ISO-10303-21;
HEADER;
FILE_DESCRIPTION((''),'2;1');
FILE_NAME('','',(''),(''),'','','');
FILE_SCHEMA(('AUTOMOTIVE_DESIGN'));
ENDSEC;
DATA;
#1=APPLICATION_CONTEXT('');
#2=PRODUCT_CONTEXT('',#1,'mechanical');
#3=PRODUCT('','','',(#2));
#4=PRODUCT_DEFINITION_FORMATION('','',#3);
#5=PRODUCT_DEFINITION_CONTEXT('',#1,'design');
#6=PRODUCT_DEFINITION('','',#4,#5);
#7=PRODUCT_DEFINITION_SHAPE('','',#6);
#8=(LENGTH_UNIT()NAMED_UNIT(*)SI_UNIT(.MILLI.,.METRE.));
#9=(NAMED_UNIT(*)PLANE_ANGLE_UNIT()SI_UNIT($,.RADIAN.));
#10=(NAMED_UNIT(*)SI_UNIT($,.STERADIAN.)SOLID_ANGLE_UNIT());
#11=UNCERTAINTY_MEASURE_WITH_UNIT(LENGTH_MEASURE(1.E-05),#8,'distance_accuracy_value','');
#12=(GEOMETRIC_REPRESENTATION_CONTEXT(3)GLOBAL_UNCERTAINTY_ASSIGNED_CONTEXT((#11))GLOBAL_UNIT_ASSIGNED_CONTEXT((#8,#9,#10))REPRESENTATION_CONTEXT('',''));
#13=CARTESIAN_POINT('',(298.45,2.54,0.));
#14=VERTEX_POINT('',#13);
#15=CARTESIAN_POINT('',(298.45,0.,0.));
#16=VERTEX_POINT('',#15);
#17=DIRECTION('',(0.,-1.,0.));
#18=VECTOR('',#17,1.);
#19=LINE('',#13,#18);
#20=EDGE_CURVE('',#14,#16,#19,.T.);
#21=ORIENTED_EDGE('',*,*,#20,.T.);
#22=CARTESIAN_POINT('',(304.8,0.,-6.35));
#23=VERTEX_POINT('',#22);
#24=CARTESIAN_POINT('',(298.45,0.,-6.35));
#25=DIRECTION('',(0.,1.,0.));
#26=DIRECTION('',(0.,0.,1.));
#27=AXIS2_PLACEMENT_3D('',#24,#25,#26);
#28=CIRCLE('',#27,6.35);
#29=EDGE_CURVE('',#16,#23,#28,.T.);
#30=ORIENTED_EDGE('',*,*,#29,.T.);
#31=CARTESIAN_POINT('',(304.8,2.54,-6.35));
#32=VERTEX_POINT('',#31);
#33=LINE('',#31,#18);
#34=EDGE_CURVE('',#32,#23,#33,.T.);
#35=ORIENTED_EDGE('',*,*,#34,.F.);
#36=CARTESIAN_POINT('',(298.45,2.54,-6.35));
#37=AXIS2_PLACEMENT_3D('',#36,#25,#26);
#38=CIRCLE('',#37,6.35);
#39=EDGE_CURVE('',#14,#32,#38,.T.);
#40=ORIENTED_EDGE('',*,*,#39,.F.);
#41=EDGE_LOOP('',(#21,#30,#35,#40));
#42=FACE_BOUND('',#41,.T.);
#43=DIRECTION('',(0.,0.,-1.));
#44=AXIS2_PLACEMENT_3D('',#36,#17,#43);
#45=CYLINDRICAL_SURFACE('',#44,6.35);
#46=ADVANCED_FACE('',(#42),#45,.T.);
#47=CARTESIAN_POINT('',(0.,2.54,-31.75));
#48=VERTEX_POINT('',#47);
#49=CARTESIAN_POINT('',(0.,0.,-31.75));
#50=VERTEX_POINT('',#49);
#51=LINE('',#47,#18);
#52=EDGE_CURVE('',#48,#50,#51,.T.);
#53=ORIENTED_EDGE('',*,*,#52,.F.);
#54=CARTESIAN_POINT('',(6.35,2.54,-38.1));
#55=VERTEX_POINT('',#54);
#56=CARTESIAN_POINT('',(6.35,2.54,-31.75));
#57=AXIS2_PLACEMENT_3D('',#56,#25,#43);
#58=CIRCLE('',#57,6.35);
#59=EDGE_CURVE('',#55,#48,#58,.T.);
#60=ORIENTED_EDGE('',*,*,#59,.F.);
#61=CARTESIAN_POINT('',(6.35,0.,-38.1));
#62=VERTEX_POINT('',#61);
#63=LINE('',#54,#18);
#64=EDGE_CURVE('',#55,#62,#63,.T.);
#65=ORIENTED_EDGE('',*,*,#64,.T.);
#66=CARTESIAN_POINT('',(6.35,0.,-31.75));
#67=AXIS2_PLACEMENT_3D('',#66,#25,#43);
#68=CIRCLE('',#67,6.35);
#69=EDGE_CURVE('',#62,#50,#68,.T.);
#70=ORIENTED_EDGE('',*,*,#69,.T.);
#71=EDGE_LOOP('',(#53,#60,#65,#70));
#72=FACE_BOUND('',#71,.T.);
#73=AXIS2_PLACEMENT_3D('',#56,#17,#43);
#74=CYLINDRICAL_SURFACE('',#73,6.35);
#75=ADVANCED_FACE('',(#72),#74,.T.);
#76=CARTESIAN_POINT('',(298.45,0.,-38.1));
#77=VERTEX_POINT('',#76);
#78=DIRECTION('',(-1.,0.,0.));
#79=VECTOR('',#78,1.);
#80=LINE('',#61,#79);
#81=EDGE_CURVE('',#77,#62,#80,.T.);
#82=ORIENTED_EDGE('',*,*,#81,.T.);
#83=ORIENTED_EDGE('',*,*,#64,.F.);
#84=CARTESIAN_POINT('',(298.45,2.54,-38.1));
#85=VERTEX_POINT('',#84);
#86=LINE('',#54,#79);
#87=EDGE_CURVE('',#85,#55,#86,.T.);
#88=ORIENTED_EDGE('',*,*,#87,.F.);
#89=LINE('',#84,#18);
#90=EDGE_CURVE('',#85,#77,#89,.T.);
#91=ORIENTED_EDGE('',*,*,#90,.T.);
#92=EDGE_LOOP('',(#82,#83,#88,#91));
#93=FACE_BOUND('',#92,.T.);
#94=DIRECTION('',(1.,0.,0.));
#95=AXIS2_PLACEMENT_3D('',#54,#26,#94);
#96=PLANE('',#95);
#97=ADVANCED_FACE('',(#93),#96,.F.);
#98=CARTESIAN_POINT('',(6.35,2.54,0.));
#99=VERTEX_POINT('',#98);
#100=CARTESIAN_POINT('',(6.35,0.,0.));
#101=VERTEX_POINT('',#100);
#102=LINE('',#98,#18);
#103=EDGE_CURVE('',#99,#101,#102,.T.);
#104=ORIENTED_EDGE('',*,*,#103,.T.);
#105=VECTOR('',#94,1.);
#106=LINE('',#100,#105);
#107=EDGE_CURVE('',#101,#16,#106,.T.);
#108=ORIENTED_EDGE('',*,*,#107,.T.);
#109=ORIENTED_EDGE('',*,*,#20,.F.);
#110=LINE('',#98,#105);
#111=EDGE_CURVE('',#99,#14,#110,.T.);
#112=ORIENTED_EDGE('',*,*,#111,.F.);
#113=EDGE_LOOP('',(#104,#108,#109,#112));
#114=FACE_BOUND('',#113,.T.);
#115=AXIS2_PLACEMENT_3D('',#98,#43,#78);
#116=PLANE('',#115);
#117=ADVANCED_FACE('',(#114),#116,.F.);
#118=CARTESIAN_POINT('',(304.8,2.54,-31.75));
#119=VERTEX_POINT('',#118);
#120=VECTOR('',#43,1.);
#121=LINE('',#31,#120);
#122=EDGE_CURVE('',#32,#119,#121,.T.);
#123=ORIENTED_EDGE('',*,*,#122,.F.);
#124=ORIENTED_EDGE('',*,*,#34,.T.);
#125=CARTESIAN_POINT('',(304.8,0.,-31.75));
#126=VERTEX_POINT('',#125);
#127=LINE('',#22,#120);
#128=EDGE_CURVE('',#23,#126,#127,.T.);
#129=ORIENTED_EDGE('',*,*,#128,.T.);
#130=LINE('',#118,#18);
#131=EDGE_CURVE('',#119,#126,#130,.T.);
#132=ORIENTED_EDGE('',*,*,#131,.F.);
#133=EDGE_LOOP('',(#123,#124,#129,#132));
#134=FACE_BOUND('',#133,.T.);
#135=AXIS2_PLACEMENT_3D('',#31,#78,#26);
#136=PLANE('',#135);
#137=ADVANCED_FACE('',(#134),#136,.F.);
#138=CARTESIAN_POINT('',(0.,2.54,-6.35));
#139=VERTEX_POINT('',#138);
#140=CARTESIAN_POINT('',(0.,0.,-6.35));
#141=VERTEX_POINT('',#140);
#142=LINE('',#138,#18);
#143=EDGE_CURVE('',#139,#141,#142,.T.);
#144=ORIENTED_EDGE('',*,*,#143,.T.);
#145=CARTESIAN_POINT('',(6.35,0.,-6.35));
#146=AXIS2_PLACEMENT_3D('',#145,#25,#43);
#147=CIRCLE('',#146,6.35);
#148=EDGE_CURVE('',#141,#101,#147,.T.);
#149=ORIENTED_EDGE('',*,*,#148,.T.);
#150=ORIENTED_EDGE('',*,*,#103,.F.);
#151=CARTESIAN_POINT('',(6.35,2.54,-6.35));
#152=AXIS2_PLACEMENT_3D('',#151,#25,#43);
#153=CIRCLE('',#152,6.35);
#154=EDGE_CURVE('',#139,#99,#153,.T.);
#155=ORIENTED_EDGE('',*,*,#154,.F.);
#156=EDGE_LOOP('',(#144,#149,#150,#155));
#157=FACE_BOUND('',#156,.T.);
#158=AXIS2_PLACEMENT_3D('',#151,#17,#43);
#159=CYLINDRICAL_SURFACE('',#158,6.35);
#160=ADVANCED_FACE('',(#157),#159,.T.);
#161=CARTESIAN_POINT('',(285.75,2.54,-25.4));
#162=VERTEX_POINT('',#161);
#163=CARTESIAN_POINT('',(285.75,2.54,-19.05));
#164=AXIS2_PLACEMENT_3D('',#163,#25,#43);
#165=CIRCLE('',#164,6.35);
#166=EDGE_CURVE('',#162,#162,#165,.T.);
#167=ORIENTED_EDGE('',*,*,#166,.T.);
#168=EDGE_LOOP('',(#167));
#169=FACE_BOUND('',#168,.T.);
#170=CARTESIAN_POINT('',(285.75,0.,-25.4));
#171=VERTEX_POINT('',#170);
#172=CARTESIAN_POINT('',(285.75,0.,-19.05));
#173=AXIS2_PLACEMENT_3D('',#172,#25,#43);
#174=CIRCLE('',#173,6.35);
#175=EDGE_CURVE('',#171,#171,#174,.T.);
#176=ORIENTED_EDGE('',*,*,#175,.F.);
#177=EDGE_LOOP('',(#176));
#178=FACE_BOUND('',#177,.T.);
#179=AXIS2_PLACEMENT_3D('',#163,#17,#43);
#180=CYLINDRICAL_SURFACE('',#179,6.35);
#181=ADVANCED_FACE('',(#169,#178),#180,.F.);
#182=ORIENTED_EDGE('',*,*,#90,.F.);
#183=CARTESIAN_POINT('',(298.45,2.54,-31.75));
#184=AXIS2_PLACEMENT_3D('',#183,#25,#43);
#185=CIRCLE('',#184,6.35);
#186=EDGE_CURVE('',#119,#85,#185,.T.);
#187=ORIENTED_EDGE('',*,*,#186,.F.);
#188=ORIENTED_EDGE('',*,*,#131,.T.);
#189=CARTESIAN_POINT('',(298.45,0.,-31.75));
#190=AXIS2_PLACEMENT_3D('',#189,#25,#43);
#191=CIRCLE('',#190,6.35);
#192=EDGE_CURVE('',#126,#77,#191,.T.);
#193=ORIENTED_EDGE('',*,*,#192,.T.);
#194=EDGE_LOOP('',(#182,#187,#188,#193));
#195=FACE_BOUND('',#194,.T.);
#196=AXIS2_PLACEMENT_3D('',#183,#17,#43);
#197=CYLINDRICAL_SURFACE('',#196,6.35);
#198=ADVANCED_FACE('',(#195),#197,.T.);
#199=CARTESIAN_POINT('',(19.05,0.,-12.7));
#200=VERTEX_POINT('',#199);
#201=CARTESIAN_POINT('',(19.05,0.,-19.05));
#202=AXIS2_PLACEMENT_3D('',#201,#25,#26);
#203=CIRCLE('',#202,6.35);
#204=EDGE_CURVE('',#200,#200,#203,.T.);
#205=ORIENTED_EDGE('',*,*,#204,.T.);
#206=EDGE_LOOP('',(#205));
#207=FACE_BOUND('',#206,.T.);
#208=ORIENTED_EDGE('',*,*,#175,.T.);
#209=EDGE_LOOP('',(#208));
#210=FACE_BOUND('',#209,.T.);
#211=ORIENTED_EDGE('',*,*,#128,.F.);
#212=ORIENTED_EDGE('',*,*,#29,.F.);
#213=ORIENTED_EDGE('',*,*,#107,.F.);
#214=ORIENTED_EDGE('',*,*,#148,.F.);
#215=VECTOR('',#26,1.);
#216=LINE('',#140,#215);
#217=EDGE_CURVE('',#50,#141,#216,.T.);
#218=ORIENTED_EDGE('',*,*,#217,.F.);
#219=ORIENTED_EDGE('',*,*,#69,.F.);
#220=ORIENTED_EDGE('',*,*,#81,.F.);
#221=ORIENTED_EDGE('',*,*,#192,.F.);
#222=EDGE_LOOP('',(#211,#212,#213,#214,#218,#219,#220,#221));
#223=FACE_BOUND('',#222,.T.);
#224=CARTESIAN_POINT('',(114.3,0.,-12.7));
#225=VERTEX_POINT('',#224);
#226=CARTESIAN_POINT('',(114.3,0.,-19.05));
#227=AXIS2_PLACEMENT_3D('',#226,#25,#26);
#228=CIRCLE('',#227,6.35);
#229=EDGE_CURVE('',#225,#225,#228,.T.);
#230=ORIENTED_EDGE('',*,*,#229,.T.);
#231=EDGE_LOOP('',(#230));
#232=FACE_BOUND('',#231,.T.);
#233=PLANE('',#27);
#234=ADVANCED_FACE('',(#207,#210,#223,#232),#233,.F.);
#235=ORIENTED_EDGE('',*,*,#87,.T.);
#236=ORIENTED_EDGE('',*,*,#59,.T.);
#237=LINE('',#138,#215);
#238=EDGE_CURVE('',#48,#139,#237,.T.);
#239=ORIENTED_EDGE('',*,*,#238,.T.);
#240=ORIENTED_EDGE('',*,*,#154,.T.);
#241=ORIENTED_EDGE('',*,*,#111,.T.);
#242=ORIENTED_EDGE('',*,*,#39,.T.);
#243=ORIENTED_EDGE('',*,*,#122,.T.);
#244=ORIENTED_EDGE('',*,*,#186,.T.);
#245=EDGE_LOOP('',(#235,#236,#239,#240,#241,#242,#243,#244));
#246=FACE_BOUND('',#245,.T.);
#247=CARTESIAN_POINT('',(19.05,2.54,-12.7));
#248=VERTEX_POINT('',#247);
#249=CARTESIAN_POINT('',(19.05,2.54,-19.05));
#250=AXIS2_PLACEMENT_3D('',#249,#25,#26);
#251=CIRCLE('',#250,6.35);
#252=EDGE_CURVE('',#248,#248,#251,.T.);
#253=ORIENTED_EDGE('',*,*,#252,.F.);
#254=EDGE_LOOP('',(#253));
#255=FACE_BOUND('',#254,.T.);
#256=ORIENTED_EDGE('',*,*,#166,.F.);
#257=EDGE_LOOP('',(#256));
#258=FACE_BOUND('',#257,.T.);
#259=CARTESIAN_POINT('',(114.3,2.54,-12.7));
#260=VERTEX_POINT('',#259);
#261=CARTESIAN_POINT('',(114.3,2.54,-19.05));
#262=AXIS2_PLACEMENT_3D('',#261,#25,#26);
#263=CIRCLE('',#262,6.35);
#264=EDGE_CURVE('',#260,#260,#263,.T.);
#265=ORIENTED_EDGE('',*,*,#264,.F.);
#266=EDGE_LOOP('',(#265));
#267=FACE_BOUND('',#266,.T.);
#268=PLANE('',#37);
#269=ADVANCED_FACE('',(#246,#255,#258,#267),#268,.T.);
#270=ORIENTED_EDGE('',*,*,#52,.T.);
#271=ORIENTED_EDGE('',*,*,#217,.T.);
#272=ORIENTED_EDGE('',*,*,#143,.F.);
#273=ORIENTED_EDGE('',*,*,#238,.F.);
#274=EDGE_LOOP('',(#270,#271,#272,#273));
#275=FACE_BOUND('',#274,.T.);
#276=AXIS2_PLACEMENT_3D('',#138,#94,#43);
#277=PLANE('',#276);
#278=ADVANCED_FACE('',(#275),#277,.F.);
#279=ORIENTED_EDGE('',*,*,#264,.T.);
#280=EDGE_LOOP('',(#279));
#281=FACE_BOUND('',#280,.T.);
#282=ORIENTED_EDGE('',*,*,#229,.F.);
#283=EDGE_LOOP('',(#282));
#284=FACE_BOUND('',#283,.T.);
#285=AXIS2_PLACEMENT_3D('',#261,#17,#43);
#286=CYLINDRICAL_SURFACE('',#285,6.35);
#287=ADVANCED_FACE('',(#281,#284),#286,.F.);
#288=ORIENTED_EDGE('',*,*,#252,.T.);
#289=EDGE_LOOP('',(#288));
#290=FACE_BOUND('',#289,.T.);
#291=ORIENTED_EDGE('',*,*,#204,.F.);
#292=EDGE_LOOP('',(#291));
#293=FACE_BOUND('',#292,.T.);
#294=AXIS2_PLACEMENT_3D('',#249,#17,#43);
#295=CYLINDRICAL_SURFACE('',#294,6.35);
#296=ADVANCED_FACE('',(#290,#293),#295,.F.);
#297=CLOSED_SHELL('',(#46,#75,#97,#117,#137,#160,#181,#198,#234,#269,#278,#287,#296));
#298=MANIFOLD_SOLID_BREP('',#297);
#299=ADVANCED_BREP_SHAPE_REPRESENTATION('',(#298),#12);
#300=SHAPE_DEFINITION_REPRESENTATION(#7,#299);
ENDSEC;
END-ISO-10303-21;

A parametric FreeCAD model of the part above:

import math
import FreeCAD as App
import Part
import Sketcher
Q = App.Units.Quantity

doc = App.newDocument("Part")
params = doc.addObject("Spreadsheet::Sheet", "Params")
for row, (alias, value) in enumerate([
    ("sketch1_diameter", "0.5 in"),
    ("sketch1_height", "1 in"),
    ("sketch1_width", "11.5 in"),
    ("pad1_length", "0.1 in"),
], start=1):
    params.set(f"A{row}", alias)
    params.set(f"B{row}", "=" + value)
    params.setAlias(f"B{row}", alias)

body = doc.addObject("PartDesign::Body", "Body")

sketch1 = body.newObject("Sketcher::SketchObject", "Sketch")
sketch1.AttachmentSupport = (doc.getObject("XZ_Plane"), [""])
sketch1.MapMode = "FlatFace"
sketch1.addGeometry([
    Part.LineSegment(App.Vector(6, 0, 0), App.Vector(298, 0, 0)),
    Part.ArcOfCircle(Part.Circle(App.Vector(298, -6, 0), App.Vector(0, 0, 1), 6), math.radians(0), math.radians(90)),
    Part.LineSegment(App.Vector(305, -6, 0), App.Vector(305, -32, 0)),
    Part.ArcOfCircle(Part.Circle(App.Vector(298, -32, 0), App.Vector(0, 0, 1), 6), math.radians(-90), math.radians(0)),
    Part.LineSegment(App.Vector(298, -38, 0), App.Vector(6, -38, 0)),
    Part.ArcOfCircle(Part.Circle(App.Vector(6, -32, 0), App.Vector(0, 0, 1), 6), math.radians(180), math.radians(270)),
    Part.LineSegment(App.Vector(0, -32, 0), App.Vector(0, -6, 0)),
    Part.ArcOfCircle(Part.Circle(App.Vector(6, -6, 0), App.Vector(0, 0, 1), 6), math.radians(90), math.radians(180)),
    Part.Circle(App.Vector(19, -19, 0), App.Vector(0, 0, 1), 6),
    Part.Circle(App.Vector(114, -19, 0), App.Vector(0, 0, 1), 6),
    Part.Circle(App.Vector(286, -19, 0), App.Vector(0, 0, 1), 6),
], False)
sketch1.addConstraint([
    Sketcher.Constraint("Tangent", 0, 2, 1, 2),
    Sketcher.Constraint("Tangent", 1, 1, 2, 1),
    Sketcher.Constraint("Tangent", 2, 2, 3, 2),
    Sketcher.Constraint("Tangent", 3, 1, 4, 1),
    Sketcher.Constraint("Tangent", 4, 2, 5, 2),
    Sketcher.Constraint("Tangent", 5, 1, 6, 1),
    Sketcher.Constraint("Tangent", 6, 2, 7, 2),
    Sketcher.Constraint("Tangent", 7, 1, 0, 1),
    Sketcher.Constraint("Horizontal", 0),
    Sketcher.Constraint("Vertical", 2),
    Sketcher.Constraint("Horizontal", 4),
    Sketcher.Constraint("Vertical", 6),
    Sketcher.Constraint("Equal", 1, 3),
    Sketcher.Constraint("Equal", 3, 5),
    Sketcher.Constraint("Equal", 5, 7),
    Sketcher.Constraint("Equal", 7, 8),
    Sketcher.Constraint("Equal", 8, 9),
    Sketcher.Constraint("Equal", 9, 10),
    Sketcher.Constraint("PointOnObject", 0, 2, -1),
    Sketcher.Constraint("PointOnObject", 5, 1, -2),
    Sketcher.Constraint("Horizontal", 8, 3, 9, 3),
    Sketcher.Constraint("Horizontal", 9, 3, 10, 3),
    Sketcher.Constraint("Diameter", 8, Q("0.5 in")),
    Sketcher.Constraint("DistanceY", 2, 2, 2, 1, Q("1 in")),
    Sketcher.Constraint("DistanceX", 0, 1, 0, 2, Q("11.5 in")),
    Sketcher.Constraint("DistanceX", 8, 3, 1, 3, Q("11 in")),
    Sketcher.Constraint("DistanceX", 5, 3, 10, 3, Q("11 in")),
    Sketcher.Constraint("DistanceX", -1, 1, 9, 3, Q("4.5 in")),
    Sketcher.Constraint("DistanceY", 5, 3, 8, 3, Q("0.5 in")),
])
sketch1.setExpression("Constraints[22]", "Params.sketch1_diameter")
sketch1.setExpression("Constraints[23]", "Params.sketch1_height")
sketch1.setExpression("Constraints[24]", "Params.sketch1_width")
pad1 = body.newObject("PartDesign::Pad", "Pad")
pad1.Profile = sketch1
pad1.setExpression("Length", "Params.pad1_length")
pad1.Reversed = True

doc.recompute()
